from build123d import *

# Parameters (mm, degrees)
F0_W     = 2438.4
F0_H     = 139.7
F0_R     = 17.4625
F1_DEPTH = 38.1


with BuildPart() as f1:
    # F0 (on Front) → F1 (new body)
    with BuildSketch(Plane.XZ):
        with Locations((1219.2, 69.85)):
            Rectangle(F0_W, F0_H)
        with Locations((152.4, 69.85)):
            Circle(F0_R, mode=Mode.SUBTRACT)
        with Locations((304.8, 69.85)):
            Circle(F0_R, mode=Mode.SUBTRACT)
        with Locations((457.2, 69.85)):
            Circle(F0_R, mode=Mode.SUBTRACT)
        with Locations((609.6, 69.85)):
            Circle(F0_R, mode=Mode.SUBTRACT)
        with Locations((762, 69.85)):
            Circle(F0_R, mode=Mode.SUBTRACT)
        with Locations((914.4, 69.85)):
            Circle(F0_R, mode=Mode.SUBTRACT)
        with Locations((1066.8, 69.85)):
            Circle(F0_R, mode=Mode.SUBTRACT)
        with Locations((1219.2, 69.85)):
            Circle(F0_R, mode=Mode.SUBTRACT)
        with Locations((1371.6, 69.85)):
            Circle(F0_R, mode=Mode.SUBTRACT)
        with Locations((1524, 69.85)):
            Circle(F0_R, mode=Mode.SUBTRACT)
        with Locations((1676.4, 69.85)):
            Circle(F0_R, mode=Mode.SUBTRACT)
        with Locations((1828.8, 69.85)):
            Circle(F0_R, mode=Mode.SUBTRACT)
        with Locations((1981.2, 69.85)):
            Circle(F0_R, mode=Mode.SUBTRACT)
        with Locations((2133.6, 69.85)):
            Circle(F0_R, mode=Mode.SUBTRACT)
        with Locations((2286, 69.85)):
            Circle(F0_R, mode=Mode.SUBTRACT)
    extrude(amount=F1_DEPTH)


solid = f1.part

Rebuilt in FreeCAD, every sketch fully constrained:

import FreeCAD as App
import Part
import Sketcher
from FreeCAD import Vector
Q = App.Units.Quantity


def add_polygon(sketch, points):
    """Adds a closed chain of lines whose ends are joined by coincident constraints."""
    first, n = sketch.GeometryCount, len(points)
    for a, b in zip(points, points[1:] + points[:1]):
        sketch.addGeometry(Part.LineSegment(App.Vector(*a, 0), App.Vector(*b, 0)), False)
    for i in range(n):
        sketch.addConstraint(Sketcher.Constraint("Coincident", first + i, 2, first + (i + 1) % n, 1))

doc = App.newDocument("Part")
body = doc.addObject("PartDesign::Body", "Body")

# Sketch on XZ plane
sketch1 = body.newObject("Sketcher::SketchObject", "Sketch")
sketch1.AttachmentSupport = (doc.getObject("XZ_Plane"), [""])
sketch1.MapMode = "FlatFace"
add_polygon(sketch1, [(0, 140), (0, 0), (2438, 0), (2438, 140)])  # lines 0-3
sketch1.addGeometry(Part.Circle(Vector(152, 70, 0), Vector(0, 0, 1), 17), False)  # 4
sketch1.addGeometry(Part.Circle(Vector(305, 70, 0), Vector(0, 0, 1), 17), False)  # 5
sketch1.addGeometry(Part.Circle(Vector(457, 70, 0), Vector(0, 0, 1), 17), False)  # 6
sketch1.addGeometry(Part.Circle(Vector(610, 70, 0), Vector(0, 0, 1), 17), False)  # 7
sketch1.addGeometry(Part.Circle(Vector(762, 70, 0), Vector(0, 0, 1), 17), False)  # 8
sketch1.addGeometry(Part.Circle(Vector(914, 70, 0), Vector(0, 0, 1), 17), False)  # 9
sketch1.addGeometry(Part.Circle(Vector(1067, 70, 0), Vector(0, 0, 1), 17), False)  # 10
sketch1.addGeometry(Part.Circle(Vector(1219, 70, 0), Vector(0, 0, 1), 17), False)  # 11
sketch1.addGeometry(Part.Circle(Vector(1372, 70, 0), Vector(0, 0, 1), 17), False)  # 12
sketch1.addGeometry(Part.Circle(Vector(1524, 70, 0), Vector(0, 0, 1), 17), False)  # 13
sketch1.addGeometry(Part.Circle(Vector(1676, 70, 0), Vector(0, 0, 1), 17), False)  # 14
sketch1.addGeometry(Part.Circle(Vector(1829, 70, 0), Vector(0, 0, 1), 17), False)  # 15
sketch1.addGeometry(Part.Circle(Vector(1981, 70, 0), Vector(0, 0, 1), 17), False)  # 16
sketch1.addGeometry(Part.Circle(Vector(2134, 70, 0), Vector(0, 0, 1), 17), False)  # 17
sketch1.addGeometry(Part.Circle(Vector(2286, 70, 0), Vector(0, 0, 1), 17), False)  # 18
sketch1.addConstraint(Sketcher.Constraint("Vertical", 0))
sketch1.addConstraint(Sketcher.Constraint("Horizontal", 1))
sketch1.addConstraint(Sketcher.Constraint("Vertical", 2))
sketch1.addConstraint(Sketcher.Constraint("Horizontal", 3))
sketch1.addConstraint(Sketcher.Constraint("Coincident", 0, 2, -1, 1))
sketch1.addConstraint(Sketcher.Constraint("Equal", 4, 5))
sketch1.addConstraint(Sketcher.Constraint("Equal", 5, 6))
sketch1.addConstraint(Sketcher.Constraint("Equal", 6, 7))
sketch1.addConstraint(Sketcher.Constraint("Equal", 7, 8))
sketch1.addConstraint(Sketcher.Constraint("Equal", 8, 9))
sketch1.addConstraint(Sketcher.Constraint("Equal", 9, 10))
sketch1.addConstraint(Sketcher.Constraint("Equal", 10, 11))
sketch1.addConstraint(Sketcher.Constraint("Equal", 11, 12))
sketch1.addConstraint(Sketcher.Constraint("Equal", 12, 13))
sketch1.addConstraint(Sketcher.Constraint("Equal", 13, 14))
sketch1.addConstraint(Sketcher.Constraint("Equal", 14, 15))
sketch1.addConstraint(Sketcher.Constraint("Equal", 15, 16))
sketch1.addConstraint(Sketcher.Constraint("Equal", 16, 17))
sketch1.addConstraint(Sketcher.Constraint("Equal", 17, 18))
sketch1.addConstraint(Sketcher.Constraint("Horizontal", 4, 3, 5, 3))
sketch1.addConstraint(Sketcher.Constraint("Horizontal", 5, 3, 6, 3))
sketch1.addConstraint(Sketcher.Constraint("Horizontal", 6, 3, 7, 3))
sketch1.addConstraint(Sketcher.Constraint("Horizontal", 7, 3, 8, 3))
sketch1.addConstraint(Sketcher.Constraint("Horizontal", 8, 3, 9, 3))
sketch1.addConstraint(Sketcher.Constraint("Horizontal", 9, 3, 10, 3))
sketch1.addConstraint(Sketcher.Constraint("Horizontal", 10, 3, 11, 3))
sketch1.addConstraint(Sketcher.Constraint("Horizontal", 11, 3, 12, 3))
sketch1.addConstraint(Sketcher.Constraint("Horizontal", 12, 3, 13, 3))
sketch1.addConstraint(Sketcher.Constraint("Horizontal", 13, 3, 14, 3))
sketch1.addConstraint(Sketcher.Constraint("Horizontal", 14, 3, 15, 3))
sketch1.addConstraint(Sketcher.Constraint("Horizontal", 15, 3, 16, 3))
sketch1.addConstraint(Sketcher.Constraint("Horizontal", 16, 3, 17, 3))
sketch1.addConstraint(Sketcher.Constraint("Horizontal", 17, 3, 18, 3))
sketch1.addConstraint(Sketcher.Constraint("DistanceX", 1, 1, 1, 2, Q("96 in")))
sketch1.addConstraint(Sketcher.Constraint("Diameter", 4, Q("1.375 in")))
sketch1.addConstraint(Sketcher.Constraint("DistanceY", 0, 2, 0, 1, Q("5.5 in")))
sketch1.addConstraint(Sketcher.Constraint("DistanceX", -1, 1, 4, 3, Q("6 in")))
sketch1.addConstraint(Sketcher.Constraint("DistanceX", -1, 1, 5, 3, Q("12 in")))
sketch1.addConstraint(Sketcher.Constraint("DistanceX", -1, 1, 6, 3, Q("18 in")))
sketch1.addConstraint(Sketcher.Constraint("DistanceX", -1, 1, 7, 3, Q("24 in")))
sketch1.addConstraint(Sketcher.Constraint("DistanceX", -1, 1, 8, 3, Q("30 in")))
sketch1.addConstraint(Sketcher.Constraint("DistanceX", -1, 1, 9, 3, Q("36 in")))
sketch1.addConstraint(Sketcher.Constraint("DistanceX", -1, 1, 10, 3, Q("42 in")))
sketch1.addConstraint(Sketcher.Constraint("DistanceX", -1, 1, 11, 3, Q("48 in")))
sketch1.addConstraint(Sketcher.Constraint("DistanceX", -1, 1, 12, 3, Q("54 in")))
sketch1.addConstraint(Sketcher.Constraint("DistanceX", -1, 1, 13, 3, Q("60 in")))
sketch1.addConstraint(Sketcher.Constraint("DistanceX", -1, 1, 14, 3, Q("66 in")))
sketch1.addConstraint(Sketcher.Constraint("DistanceX", -1, 1, 15, 3, Q("72 in")))
sketch1.addConstraint(Sketcher.Constraint("DistanceX", -1, 1, 16, 3, Q("78 in")))
sketch1.addConstraint(Sketcher.Constraint("DistanceX", -1, 1, 17, 3, Q("84 in")))
sketch1.addConstraint(Sketcher.Constraint("DistanceX", -1, 1, 18, 3, Q("90 in")))
sketch1.addConstraint(Sketcher.Constraint("DistanceY", -1, 1, 4, 3, Q("2.75 in")))
pad1 = body.newObject("PartDesign::Pad", "Pad")
pad1.Profile = sketch1
pad1.Length = Q("1.5 in")

doc.recompute()
